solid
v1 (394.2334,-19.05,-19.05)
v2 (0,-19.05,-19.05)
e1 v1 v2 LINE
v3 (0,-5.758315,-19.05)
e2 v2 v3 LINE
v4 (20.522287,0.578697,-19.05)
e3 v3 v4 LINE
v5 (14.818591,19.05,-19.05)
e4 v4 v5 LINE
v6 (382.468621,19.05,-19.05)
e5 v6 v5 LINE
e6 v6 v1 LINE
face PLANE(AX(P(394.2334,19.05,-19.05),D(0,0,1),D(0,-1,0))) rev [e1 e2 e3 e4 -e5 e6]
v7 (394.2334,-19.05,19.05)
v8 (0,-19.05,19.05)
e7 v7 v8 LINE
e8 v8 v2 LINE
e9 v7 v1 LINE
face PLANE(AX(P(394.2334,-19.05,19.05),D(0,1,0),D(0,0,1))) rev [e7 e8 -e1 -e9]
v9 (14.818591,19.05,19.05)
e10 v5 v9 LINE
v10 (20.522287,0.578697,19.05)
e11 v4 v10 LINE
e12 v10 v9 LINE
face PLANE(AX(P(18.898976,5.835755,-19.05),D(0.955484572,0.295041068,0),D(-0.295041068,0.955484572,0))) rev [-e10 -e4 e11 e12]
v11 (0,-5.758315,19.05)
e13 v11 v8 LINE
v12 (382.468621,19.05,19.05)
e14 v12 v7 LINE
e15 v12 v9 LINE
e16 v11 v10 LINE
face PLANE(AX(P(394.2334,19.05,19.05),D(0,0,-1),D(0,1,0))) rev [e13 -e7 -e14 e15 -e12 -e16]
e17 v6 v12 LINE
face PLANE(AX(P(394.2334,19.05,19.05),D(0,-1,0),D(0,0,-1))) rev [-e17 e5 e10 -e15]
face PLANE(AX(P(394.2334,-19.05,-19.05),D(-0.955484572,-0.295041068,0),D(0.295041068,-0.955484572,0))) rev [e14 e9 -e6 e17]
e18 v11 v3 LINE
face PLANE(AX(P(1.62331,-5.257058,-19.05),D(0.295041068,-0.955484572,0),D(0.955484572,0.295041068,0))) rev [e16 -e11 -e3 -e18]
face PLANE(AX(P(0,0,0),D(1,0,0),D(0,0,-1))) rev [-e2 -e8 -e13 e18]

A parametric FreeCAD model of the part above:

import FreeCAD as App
import Part
import Sketcher
Q = App.Units.Quantity

doc = App.newDocument("Part")
params = doc.addObject("Spreadsheet::Sheet", "Params")
for row, (alias, value) in enumerate([
    ("sketch1_width", "1.5 in"),
    ("pad1_length", "15.521 in"),
    ("sketch2_height", "1.5 in"),
], start=1):
    params.set(f"A{row}", alias)
    params.set(f"B{row}", "=" + value)
    params.setAlias(f"B{row}", alias)

body = doc.addObject("PartDesign::Body", "Body")

sketch1 = body.newObject("Sketcher::SketchObject", "Sketch")
sketch1.AttachmentSupport = (doc.getObject("YZ_Plane"), [""])
sketch1.MapMode = "FlatFace"
sketch1.addGeometry(Part.LineSegment(App.Vector(19.05, 19.05, 0), App.Vector(-19.05, 19.05, 0)), False)
sketch1.addGeometry(Part.LineSegment(App.Vector(-19.05, 19.05, 0), App.Vector(-19.05, -19.05, 0)), False)
sketch1.addGeometry(Part.LineSegment(App.Vector(-19.05, -19.05, 0), App.Vector(19.05, -19.05, 0)), False)
sketch1.addGeometry(Part.LineSegment(App.Vector(19.05, -19.05, 0), App.Vector(19.05, 19.05, 0)), False)
sketch1.addConstraint(Sketcher.Constraint("Coincident", 0, 2, 1, 1))
sketch1.addConstraint(Sketcher.Constraint("Coincident", 1, 2, 2, 1))
sketch1.addConstraint(Sketcher.Constraint("Coincident", 2, 2, 3, 1))
sketch1.addConstraint(Sketcher.Constraint("Coincident", 3, 2, 0, 1))
sketch1.addConstraint(Sketcher.Constraint("Horizontal", 0))
sketch1.addConstraint(Sketcher.Constraint("Vertical", 1))
sketch1.addConstraint(Sketcher.Constraint("Horizontal", 2))
sketch1.addConstraint(Sketcher.Constraint("Vertical", 3))
sketch1.addConstraint(Sketcher.Constraint("Symmetric", 0, 2, 2, 2, -1, 1))
sketch1.addConstraint(Sketcher.Constraint("Equal", 2, 1))
sketch1.addConstraint(Sketcher.Constraint("DistanceX", 0, 2, 0, 1, Q("1.5 in")))
sketch1.setExpression("Constraints[10]", "Params.sketch1_width")
pad1 = body.newObject("PartDesign::Pad", "Pad")
pad1.Profile = sketch1
pad1.setExpression("Length", "Params.pad1_length")

sketch2 = body.newObject("Sketcher::SketchObject", "Sketch001")
sketch2.AttachmentSupport = (doc.getObject("XY_Plane"), [""])
sketch2.MapMode = "FlatFace"
sketch2.AttachmentOffset = App.Placement(App.Vector(0, 0, 0.75 * 25.4), App.Rotation())
sketch2.addGeometry(Part.LineSegment(App.Vector(382.468621, 19.05, 0), App.Vector(394.2334, -19.05, 0)), False)
sketch2.addGeometry(Part.LineSegment(App.Vector(394.2334, -19.05, 0), App.Vector(394.2334, 19.05, 0)), False)
sketch2.addGeometry(Part.LineSegment(App.Vector(394.2334, 19.05, 0), App.Vector(382.468621, 19.05, 0)), False)
sketch2.addConstraint(Sketcher.Constraint("Coincident", 0, 2, 1, 1))
sketch2.addConstraint(Sketcher.Constraint("Coincident", 1, 2, 2, 1))
sketch2.addConstraint(Sketcher.Constraint("Coincident", 2, 2, 0, 1))
sketch2.addConstraint(Sketcher.Constraint("Vertical", 1))
sketch2.addConstraint(Sketcher.Constraint("Horizontal", 2))
sketch2.addConstraint(Sketcher.Constraint("DistanceY", 1, 1, 1, 2, Q("1.5 in")))
sketch2.addConstraint(Sketcher.Constraint("DistanceY", 0, 2, -1, 1, Q("0.75 in")))
sketch2.addConstraint(Sketcher.Constraint("Angle", 0, Q("-72.84 deg")))
sketch2.addConstraint(Sketcher.Constraint("DistanceX", -1, 1, 0, 2, Q("15.521 in")))
sketch2.setExpression("Constraints[5]", "Params.sketch2_height")
pocket1 = body.newObject("PartDesign::Pocket", "Pocket")
pocket1.Profile = sketch2
pocket1.Type = "ThroughAll"

sketch3 = body.newObject("Sketcher::SketchObject", "Sketch002")
sketch3.AttachmentSupport = (doc.getObject("XY_Plane"), [""])
sketch3.MapMode = "FlatFace"
sketch3.AttachmentOffset = App.Placement(App.Vector(0, 0, 0.75 * 25.4), App.Rotation())
sketch3.addGeometry(Part.LineSegment(App.Vector(0, 19.05, 0), App.Vector(0, -5.758315, 0)), False)
sketch3.addGeometry(Part.LineSegment(App.Vector(0, -5.758315, 0), App.Vector(20.522287, 0.578697, 0)), False)
sketch3.addGeometry(Part.LineSegment(App.Vector(20.522287, 0.578697, 0), App.Vector(14.818591, 19.05, 0)), False)
sketch3.addGeometry(Part.LineSegment(App.Vector(14.818591, 19.05, 0), App.Vector(0, 19.05, 0)), False)
sketch3.addConstraint(Sketcher.Constraint("Coincident", 0, 2, 1, 1))
sketch3.addConstraint(Sketcher.Constraint("Coincident", 1, 2, 2, 1))
sketch3.addConstraint(Sketcher.Constraint("Coincident", 2, 2, 3, 1))
sketch3.addConstraint(Sketcher.Constraint("Coincident", 3, 2, 0, 1))
sketch3.addConstraint(Sketcher.Constraint("Vertical", 0))
sketch3.addConstraint(Sketcher.Constraint("Horizontal", 3))
sketch3.addConstraint(Sketcher.Constraint("PointOnObject", 0, 2, -2))
sketch3.addConstraint(Sketcher.Constraint("Perpendicular", 1, 2))
sketch3.addConstraint(Sketcher.Constraint("DistanceY", -1, 1, 2, 2, Q("0.75 in")))
sketch3.addConstraint(Sketcher.Constraint("Angle", 1, Q("17.16 deg")))
sketch3.addConstraint(Sketcher.Constraint("DistanceX", 3, 2, 3, 1, Q("14.818591 mm")))
sketch3.addConstraint(Sketcher.Constraint("Distance", 2, Q("19.331869 mm")))
pocket2 = body.newObject("PartDesign::Pocket", "Pocket001")
pocket2.Profile = sketch3
pocket2.Type = "ThroughAll"
pocket2.Midplane = True

doc.recompute()
